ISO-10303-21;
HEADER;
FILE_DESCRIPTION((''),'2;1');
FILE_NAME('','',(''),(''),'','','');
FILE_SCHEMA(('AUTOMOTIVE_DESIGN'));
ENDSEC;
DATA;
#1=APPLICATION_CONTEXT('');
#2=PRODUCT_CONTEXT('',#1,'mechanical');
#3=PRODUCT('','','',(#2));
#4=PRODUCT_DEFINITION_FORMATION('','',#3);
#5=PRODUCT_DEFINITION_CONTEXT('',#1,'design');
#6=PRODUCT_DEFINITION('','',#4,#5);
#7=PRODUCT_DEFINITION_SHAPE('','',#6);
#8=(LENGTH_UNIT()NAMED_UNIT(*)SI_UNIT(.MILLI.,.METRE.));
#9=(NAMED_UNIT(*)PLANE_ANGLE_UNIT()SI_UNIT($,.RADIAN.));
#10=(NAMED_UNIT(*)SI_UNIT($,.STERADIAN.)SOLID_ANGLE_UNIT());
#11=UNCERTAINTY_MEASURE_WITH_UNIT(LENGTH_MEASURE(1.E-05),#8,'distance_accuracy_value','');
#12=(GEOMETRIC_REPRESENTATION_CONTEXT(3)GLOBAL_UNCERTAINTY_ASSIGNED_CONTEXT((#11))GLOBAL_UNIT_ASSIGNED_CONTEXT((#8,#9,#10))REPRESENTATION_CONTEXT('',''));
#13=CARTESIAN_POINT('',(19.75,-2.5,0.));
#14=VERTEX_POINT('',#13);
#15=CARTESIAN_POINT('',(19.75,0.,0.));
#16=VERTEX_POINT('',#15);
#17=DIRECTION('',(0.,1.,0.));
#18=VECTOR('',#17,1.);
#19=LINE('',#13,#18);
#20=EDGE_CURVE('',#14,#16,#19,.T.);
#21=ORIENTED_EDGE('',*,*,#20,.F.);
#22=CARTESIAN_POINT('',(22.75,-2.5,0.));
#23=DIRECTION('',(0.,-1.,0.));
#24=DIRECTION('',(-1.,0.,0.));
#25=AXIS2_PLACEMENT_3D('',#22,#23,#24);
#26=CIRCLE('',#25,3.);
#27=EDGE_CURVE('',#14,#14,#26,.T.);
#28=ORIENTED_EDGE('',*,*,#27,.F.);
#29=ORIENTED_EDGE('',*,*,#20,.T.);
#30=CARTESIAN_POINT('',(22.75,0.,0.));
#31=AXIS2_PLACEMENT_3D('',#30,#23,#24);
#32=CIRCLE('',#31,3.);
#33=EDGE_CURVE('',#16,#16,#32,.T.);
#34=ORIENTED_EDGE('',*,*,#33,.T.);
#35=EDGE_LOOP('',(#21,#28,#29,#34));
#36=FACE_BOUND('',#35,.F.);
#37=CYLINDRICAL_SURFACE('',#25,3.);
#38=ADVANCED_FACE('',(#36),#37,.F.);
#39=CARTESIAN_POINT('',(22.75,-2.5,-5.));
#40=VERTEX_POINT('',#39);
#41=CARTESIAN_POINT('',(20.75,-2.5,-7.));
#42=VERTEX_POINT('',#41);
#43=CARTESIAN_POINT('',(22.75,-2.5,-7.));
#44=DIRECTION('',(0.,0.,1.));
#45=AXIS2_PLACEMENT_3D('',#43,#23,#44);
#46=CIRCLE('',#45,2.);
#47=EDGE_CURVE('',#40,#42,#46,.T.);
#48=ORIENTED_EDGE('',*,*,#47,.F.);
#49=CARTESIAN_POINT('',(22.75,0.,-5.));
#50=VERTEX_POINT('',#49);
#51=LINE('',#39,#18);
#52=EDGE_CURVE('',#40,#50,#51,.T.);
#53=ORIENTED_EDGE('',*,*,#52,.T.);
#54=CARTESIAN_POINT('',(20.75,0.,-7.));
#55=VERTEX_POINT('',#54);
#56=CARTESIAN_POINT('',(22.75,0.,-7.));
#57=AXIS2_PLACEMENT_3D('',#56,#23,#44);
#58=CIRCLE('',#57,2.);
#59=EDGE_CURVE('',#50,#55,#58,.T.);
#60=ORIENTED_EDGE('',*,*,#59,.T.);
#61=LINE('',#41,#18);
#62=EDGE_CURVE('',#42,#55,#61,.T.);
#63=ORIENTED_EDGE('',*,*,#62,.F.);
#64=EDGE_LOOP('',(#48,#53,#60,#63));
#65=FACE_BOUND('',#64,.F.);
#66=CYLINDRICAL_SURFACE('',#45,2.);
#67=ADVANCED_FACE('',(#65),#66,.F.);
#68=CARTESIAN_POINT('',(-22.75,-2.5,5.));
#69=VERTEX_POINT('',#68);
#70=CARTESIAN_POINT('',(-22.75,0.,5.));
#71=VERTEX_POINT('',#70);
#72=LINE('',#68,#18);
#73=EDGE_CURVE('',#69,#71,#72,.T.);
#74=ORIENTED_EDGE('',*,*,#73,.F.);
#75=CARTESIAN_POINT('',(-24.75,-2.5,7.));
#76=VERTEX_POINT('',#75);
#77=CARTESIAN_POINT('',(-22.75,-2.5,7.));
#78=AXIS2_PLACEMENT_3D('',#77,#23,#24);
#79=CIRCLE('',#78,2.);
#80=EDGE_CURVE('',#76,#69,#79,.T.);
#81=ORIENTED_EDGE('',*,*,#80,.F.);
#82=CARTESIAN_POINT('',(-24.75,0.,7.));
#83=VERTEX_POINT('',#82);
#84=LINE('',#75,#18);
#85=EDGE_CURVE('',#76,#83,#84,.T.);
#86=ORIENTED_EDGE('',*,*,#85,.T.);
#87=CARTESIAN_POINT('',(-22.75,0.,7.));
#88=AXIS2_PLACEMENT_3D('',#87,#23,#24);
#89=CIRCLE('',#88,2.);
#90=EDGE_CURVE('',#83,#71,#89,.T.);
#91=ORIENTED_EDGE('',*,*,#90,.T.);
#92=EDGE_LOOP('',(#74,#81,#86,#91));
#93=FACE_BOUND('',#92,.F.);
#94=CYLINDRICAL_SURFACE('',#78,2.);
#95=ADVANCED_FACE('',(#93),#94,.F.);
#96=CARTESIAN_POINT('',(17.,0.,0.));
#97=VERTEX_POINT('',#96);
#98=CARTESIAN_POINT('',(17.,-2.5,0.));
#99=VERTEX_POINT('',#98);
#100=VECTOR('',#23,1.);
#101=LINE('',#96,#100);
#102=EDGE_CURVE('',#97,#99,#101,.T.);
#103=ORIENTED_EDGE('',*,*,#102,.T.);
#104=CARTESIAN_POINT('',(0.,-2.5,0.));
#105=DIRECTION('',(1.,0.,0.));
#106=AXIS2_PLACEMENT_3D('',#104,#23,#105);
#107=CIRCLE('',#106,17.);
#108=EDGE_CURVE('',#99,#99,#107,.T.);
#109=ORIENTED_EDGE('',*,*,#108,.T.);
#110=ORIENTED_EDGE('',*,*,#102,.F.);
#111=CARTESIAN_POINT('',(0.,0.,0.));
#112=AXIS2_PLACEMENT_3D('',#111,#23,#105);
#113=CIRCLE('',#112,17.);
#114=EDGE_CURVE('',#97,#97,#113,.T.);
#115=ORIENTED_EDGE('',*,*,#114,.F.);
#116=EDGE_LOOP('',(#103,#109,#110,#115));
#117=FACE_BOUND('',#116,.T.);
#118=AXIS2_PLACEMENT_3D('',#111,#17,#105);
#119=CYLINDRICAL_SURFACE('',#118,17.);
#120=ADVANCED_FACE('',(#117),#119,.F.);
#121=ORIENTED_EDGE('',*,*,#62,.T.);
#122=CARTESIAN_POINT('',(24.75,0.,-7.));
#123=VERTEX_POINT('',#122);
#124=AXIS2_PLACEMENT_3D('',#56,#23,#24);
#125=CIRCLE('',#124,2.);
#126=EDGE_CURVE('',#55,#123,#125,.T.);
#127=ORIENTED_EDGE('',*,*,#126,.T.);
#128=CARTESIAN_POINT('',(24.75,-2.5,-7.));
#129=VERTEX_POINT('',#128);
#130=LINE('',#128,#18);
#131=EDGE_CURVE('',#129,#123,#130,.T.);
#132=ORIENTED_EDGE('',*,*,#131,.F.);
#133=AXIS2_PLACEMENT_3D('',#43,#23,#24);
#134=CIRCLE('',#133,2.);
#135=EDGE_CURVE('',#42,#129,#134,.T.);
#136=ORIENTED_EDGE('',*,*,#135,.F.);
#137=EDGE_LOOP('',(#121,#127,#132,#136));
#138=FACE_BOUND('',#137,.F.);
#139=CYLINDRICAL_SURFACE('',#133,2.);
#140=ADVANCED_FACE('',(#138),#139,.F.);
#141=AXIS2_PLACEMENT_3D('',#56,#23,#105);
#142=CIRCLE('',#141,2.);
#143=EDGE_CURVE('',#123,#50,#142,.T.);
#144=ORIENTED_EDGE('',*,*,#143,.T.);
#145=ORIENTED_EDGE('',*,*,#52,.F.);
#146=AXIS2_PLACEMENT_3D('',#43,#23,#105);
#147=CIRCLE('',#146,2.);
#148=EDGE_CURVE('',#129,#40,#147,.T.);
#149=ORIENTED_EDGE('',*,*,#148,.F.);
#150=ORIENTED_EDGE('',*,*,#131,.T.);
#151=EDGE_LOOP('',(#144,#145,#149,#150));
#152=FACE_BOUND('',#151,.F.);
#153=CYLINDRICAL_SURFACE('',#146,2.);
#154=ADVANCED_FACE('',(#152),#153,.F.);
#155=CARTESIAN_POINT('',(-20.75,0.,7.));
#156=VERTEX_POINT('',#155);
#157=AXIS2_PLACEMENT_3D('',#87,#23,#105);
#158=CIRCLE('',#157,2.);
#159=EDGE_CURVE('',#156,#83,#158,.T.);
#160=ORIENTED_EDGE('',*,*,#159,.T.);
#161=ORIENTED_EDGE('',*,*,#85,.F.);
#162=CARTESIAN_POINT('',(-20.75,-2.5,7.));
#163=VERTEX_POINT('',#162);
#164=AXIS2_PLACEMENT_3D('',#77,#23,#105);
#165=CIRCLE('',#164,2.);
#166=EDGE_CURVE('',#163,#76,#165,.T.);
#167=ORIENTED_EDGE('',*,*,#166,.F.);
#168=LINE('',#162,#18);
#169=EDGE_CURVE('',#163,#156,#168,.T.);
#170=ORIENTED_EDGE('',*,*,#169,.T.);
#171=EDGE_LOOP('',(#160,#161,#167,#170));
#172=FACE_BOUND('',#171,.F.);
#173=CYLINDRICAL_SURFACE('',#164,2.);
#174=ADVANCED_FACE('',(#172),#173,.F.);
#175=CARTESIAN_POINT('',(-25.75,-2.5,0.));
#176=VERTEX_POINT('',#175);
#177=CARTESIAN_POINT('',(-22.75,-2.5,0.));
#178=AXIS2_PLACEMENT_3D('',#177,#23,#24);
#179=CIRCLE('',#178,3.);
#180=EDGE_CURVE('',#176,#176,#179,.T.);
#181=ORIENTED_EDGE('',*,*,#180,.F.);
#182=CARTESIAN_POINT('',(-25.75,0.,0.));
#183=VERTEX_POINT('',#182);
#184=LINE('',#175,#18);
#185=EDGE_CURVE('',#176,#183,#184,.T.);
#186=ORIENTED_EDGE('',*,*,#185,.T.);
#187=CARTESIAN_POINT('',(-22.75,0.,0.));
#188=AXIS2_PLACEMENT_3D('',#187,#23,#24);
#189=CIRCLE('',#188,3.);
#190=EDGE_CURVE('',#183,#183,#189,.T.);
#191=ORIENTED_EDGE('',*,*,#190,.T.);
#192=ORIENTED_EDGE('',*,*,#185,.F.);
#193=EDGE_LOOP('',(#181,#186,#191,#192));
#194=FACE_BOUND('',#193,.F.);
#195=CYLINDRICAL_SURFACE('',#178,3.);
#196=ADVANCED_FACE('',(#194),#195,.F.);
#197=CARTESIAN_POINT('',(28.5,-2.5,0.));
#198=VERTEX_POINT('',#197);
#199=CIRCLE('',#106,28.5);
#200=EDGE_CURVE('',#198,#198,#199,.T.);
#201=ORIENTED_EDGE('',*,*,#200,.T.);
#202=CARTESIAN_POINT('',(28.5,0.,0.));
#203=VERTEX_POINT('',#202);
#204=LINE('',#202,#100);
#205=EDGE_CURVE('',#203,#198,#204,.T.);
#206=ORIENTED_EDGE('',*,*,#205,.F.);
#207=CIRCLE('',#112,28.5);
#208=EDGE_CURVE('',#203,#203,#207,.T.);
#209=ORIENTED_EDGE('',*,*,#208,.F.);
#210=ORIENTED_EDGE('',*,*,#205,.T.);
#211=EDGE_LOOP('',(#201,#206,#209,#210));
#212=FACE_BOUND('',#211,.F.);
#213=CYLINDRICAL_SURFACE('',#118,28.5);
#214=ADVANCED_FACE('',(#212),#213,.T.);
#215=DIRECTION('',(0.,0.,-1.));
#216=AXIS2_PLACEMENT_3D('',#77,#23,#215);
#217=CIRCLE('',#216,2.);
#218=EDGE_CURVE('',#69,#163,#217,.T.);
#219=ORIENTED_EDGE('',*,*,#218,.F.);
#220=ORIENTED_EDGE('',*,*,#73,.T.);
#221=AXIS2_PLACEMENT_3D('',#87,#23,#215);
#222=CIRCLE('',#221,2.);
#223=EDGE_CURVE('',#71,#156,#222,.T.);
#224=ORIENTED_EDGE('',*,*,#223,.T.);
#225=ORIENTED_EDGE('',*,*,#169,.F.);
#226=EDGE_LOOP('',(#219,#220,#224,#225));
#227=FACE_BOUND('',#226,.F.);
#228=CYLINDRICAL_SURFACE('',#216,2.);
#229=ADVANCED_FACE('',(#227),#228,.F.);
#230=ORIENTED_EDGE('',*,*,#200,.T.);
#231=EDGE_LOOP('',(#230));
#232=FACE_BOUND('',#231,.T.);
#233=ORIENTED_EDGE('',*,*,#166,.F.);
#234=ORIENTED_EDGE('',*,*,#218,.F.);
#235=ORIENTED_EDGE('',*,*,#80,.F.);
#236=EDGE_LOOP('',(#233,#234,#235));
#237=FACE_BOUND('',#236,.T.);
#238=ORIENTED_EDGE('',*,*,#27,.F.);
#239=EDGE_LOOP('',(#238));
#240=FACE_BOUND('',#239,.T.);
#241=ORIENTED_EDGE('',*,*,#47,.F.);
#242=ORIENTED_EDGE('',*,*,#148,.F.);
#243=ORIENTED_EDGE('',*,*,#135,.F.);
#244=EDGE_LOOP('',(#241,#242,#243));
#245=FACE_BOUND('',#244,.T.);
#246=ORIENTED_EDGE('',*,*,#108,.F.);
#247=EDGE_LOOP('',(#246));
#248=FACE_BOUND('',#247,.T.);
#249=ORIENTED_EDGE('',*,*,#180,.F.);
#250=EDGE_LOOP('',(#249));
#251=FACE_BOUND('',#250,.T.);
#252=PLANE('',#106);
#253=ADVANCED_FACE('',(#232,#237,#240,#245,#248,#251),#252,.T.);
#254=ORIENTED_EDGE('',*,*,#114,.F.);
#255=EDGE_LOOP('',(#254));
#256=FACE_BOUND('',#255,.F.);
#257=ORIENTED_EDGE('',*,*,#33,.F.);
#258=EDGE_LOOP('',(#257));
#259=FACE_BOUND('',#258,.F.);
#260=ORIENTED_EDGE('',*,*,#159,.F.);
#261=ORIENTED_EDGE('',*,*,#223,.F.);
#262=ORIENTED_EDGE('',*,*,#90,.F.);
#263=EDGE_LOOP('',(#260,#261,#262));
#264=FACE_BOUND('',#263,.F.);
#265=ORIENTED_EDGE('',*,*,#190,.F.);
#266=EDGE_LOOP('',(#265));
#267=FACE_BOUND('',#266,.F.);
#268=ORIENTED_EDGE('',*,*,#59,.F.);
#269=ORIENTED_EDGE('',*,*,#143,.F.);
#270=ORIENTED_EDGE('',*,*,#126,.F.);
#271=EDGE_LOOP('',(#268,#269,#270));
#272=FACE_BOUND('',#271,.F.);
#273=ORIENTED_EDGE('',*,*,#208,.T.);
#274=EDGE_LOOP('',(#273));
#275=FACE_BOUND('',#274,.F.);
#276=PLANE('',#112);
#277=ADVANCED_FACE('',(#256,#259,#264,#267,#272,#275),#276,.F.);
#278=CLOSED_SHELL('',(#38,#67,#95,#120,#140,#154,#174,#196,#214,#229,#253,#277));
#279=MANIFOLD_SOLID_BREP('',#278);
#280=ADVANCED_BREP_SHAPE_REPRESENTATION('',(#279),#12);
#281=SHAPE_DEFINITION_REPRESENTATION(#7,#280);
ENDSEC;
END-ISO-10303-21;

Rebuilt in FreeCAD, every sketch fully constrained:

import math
import FreeCAD as App
import Part
import Sketcher

V = App.Vector
Q = App.Units.Quantity

doc = App.newDocument("Part")
body = doc.addObject("PartDesign::Body", "Body")

sketch1 = doc.addObject("Sketcher::SketchObject", "Sketch")
body.addObject(sketch1)
sketch1.AttachmentSupport = (doc.XZ_Plane, [""])
sketch1.MapMode = "FlatFace"
sketch1.addGeometry(Part.Circle(V(0, 0, 0), V(0, 0, 1), 28), False)
sketch1.addGeometry(Part.Circle(V(0, 0, 0), V(0, 0, 1), 17), False)
sketch1.addConstraint(Sketcher.Constraint("Coincident", 0, 3, -1, 1))
sketch1.addConstraint(Sketcher.Constraint("Coincident", 1, 3, -1, 1))
sketch1.addConstraint(Sketcher.Constraint("Diameter", 0, Q("57 mm")))
sketch1.addConstraint(Sketcher.Constraint("Diameter", 1, Q("34 mm")))
pad1 = doc.addObject("PartDesign::Pad", "Pad")
body.addObject(pad1)
pad1.Profile = sketch1
pad1.Length = 2.5

sketch2 = doc.addObject("Sketcher::SketchObject", "Sketch001")
body.addObject(sketch2)
sketch2.AttachmentSupport = (doc.XZ_Plane, [""])
sketch2.MapMode = "FlatFace"
sketch2.AttachmentOffset = App.Placement(V(0, 0, 2.5), App.Rotation())
sketch2.addGeometry(Part.Circle(V(-22.8, 0, 0), V(0, 0, 1), 3), False)
sketch2.addGeometry(Part.Circle(V(22.8, 0, 0), V(0, 0, 1), 3), False)
sketch2.addConstraint(Sketcher.Constraint("Equal", 0, 1))
sketch2.addConstraint(Sketcher.Constraint("Symmetric", 0, 3, 1, 3, -1, 1))
sketch2.addConstraint(Sketcher.Constraint("PointOnObject", 0, 3, -1))
sketch2.addConstraint(Sketcher.Constraint("Diameter", 0, Q("6 mm")))
sketch2.addConstraint(Sketcher.Constraint("DistanceX", 0, 3, 1, 3, Q("45.5 mm")))
pocket1 = doc.addObject("PartDesign::Pocket", "Pocket")
body.addObject(pocket1)
pocket1.Profile = sketch2
pocket1.Length = 25

sketch3 = doc.addObject("Sketcher::SketchObject", "Sketch002")
body.addObject(sketch3)
sketch3.AttachmentSupport = (doc.XZ_Plane, [""])
sketch3.MapMode = "FlatFace"
sketch3.AttachmentOffset = App.Placement(V(0, 0, 2.5), App.Rotation())
sketch3.addGeometry(Part.ArcOfCircle(Part.Circle(V(-22.8, 7, 0), V(0, 0, 1), 2), math.radians(-90), math.radians(0)), False)
sketch3.addGeometry(Part.ArcOfCircle(Part.Circle(V(-22.8, 7, 0), V(0, 0, 1), 2), math.radians(0), math.radians(180)), False)
sketch3.addGeometry(Part.ArcOfCircle(Part.Circle(V(-22.8, 7, 0), V(0, 0, 1), 2), math.radians(180), math.radians(270)), False)
sketch3.addConstraint(Sketcher.Constraint("Tangent", 0, 2, 1, 1))
sketch3.addConstraint(Sketcher.Constraint("Tangent", 1, 2, 2, 1))
sketch3.addConstraint(Sketcher.Constraint("Tangent", 2, 2, 0, 1))
sketch3.addConstraint(Sketcher.Constraint("Horizontal", 2, 3, 0, 2))
sketch3.addConstraint(Sketcher.Constraint("Horizontal", 0, 2, 1, 2))
sketch3.addConstraint(Sketcher.Constraint("Vertical", 1, 3, 2, 2))
sketch3.addConstraint(Sketcher.Constraint("Radius", 0, Q("2 mm")))
sketch3.addConstraint(Sketcher.Constraint("DistanceY", -1, 1, 0, 3, Q("7 mm")))
sketch3.addConstraint(Sketcher.Constraint("DistanceX", 0, 3, -1, 1, Q("22.75 mm")))
pocket2 = doc.addObject("PartDesign::Pocket", "Pocket001")
body.addObject(pocket2)
pocket2.Profile = sketch3
pocket2.Length = 25

sketch4 = doc.addObject("Sketcher::SketchObject", "Sketch003")
body.addObject(sketch4)
sketch4.AttachmentSupport = (doc.XZ_Plane, [""])
sketch4.MapMode = "FlatFace"
sketch4.AttachmentOffset = App.Placement(V(0, 0, 2.5), App.Rotation())
sketch4.addGeometry(Part.ArcOfCircle(Part.Circle(V(22.8, -7, 0), V(0, 0, 1), 2), math.radians(90), math.radians(180)), False)
sketch4.addGeometry(Part.ArcOfCircle(Part.Circle(V(22.8, -7, 0), V(0, 0, 1), 2), math.radians(180), math.radians(360)), False)
sketch4.addGeometry(Part.ArcOfCircle(Part.Circle(V(22.8, -7, 0), V(0, 0, 1), 2), math.radians(0), math.radians(90)), False)
sketch4.addConstraint(Sketcher.Constraint("Tangent", 0, 2, 1, 1))
sketch4.addConstraint(Sketcher.Constraint("Tangent", 1, 2, 2, 1))
sketch4.addConstraint(Sketcher.Constraint("Tangent", 2, 2, 0, 1))
sketch4.addConstraint(Sketcher.Constraint("Horizontal", 2, 3, 0, 2))
sketch4.addConstraint(Sketcher.Constraint("Horizontal", 0, 2, 1, 2))
sketch4.addConstraint(Sketcher.Constraint("Vertical", 1, 3, 2, 2))
sketch4.addConstraint(Sketcher.Constraint("Radius", 0, Q("2 mm")))
sketch4.addConstraint(Sketcher.Constraint("DistanceY", 0, 3, -1, 1, Q("7 mm")))
sketch4.addConstraint(Sketcher.Constraint("DistanceX", -1, 1, 0, 3, Q("22.75 mm")))
pocket3 = doc.addObject("PartDesign::Pocket", "Pocket002")
body.addObject(pocket3)
pocket3.Profile = sketch4
pocket3.Length = 25

doc.recompute()
